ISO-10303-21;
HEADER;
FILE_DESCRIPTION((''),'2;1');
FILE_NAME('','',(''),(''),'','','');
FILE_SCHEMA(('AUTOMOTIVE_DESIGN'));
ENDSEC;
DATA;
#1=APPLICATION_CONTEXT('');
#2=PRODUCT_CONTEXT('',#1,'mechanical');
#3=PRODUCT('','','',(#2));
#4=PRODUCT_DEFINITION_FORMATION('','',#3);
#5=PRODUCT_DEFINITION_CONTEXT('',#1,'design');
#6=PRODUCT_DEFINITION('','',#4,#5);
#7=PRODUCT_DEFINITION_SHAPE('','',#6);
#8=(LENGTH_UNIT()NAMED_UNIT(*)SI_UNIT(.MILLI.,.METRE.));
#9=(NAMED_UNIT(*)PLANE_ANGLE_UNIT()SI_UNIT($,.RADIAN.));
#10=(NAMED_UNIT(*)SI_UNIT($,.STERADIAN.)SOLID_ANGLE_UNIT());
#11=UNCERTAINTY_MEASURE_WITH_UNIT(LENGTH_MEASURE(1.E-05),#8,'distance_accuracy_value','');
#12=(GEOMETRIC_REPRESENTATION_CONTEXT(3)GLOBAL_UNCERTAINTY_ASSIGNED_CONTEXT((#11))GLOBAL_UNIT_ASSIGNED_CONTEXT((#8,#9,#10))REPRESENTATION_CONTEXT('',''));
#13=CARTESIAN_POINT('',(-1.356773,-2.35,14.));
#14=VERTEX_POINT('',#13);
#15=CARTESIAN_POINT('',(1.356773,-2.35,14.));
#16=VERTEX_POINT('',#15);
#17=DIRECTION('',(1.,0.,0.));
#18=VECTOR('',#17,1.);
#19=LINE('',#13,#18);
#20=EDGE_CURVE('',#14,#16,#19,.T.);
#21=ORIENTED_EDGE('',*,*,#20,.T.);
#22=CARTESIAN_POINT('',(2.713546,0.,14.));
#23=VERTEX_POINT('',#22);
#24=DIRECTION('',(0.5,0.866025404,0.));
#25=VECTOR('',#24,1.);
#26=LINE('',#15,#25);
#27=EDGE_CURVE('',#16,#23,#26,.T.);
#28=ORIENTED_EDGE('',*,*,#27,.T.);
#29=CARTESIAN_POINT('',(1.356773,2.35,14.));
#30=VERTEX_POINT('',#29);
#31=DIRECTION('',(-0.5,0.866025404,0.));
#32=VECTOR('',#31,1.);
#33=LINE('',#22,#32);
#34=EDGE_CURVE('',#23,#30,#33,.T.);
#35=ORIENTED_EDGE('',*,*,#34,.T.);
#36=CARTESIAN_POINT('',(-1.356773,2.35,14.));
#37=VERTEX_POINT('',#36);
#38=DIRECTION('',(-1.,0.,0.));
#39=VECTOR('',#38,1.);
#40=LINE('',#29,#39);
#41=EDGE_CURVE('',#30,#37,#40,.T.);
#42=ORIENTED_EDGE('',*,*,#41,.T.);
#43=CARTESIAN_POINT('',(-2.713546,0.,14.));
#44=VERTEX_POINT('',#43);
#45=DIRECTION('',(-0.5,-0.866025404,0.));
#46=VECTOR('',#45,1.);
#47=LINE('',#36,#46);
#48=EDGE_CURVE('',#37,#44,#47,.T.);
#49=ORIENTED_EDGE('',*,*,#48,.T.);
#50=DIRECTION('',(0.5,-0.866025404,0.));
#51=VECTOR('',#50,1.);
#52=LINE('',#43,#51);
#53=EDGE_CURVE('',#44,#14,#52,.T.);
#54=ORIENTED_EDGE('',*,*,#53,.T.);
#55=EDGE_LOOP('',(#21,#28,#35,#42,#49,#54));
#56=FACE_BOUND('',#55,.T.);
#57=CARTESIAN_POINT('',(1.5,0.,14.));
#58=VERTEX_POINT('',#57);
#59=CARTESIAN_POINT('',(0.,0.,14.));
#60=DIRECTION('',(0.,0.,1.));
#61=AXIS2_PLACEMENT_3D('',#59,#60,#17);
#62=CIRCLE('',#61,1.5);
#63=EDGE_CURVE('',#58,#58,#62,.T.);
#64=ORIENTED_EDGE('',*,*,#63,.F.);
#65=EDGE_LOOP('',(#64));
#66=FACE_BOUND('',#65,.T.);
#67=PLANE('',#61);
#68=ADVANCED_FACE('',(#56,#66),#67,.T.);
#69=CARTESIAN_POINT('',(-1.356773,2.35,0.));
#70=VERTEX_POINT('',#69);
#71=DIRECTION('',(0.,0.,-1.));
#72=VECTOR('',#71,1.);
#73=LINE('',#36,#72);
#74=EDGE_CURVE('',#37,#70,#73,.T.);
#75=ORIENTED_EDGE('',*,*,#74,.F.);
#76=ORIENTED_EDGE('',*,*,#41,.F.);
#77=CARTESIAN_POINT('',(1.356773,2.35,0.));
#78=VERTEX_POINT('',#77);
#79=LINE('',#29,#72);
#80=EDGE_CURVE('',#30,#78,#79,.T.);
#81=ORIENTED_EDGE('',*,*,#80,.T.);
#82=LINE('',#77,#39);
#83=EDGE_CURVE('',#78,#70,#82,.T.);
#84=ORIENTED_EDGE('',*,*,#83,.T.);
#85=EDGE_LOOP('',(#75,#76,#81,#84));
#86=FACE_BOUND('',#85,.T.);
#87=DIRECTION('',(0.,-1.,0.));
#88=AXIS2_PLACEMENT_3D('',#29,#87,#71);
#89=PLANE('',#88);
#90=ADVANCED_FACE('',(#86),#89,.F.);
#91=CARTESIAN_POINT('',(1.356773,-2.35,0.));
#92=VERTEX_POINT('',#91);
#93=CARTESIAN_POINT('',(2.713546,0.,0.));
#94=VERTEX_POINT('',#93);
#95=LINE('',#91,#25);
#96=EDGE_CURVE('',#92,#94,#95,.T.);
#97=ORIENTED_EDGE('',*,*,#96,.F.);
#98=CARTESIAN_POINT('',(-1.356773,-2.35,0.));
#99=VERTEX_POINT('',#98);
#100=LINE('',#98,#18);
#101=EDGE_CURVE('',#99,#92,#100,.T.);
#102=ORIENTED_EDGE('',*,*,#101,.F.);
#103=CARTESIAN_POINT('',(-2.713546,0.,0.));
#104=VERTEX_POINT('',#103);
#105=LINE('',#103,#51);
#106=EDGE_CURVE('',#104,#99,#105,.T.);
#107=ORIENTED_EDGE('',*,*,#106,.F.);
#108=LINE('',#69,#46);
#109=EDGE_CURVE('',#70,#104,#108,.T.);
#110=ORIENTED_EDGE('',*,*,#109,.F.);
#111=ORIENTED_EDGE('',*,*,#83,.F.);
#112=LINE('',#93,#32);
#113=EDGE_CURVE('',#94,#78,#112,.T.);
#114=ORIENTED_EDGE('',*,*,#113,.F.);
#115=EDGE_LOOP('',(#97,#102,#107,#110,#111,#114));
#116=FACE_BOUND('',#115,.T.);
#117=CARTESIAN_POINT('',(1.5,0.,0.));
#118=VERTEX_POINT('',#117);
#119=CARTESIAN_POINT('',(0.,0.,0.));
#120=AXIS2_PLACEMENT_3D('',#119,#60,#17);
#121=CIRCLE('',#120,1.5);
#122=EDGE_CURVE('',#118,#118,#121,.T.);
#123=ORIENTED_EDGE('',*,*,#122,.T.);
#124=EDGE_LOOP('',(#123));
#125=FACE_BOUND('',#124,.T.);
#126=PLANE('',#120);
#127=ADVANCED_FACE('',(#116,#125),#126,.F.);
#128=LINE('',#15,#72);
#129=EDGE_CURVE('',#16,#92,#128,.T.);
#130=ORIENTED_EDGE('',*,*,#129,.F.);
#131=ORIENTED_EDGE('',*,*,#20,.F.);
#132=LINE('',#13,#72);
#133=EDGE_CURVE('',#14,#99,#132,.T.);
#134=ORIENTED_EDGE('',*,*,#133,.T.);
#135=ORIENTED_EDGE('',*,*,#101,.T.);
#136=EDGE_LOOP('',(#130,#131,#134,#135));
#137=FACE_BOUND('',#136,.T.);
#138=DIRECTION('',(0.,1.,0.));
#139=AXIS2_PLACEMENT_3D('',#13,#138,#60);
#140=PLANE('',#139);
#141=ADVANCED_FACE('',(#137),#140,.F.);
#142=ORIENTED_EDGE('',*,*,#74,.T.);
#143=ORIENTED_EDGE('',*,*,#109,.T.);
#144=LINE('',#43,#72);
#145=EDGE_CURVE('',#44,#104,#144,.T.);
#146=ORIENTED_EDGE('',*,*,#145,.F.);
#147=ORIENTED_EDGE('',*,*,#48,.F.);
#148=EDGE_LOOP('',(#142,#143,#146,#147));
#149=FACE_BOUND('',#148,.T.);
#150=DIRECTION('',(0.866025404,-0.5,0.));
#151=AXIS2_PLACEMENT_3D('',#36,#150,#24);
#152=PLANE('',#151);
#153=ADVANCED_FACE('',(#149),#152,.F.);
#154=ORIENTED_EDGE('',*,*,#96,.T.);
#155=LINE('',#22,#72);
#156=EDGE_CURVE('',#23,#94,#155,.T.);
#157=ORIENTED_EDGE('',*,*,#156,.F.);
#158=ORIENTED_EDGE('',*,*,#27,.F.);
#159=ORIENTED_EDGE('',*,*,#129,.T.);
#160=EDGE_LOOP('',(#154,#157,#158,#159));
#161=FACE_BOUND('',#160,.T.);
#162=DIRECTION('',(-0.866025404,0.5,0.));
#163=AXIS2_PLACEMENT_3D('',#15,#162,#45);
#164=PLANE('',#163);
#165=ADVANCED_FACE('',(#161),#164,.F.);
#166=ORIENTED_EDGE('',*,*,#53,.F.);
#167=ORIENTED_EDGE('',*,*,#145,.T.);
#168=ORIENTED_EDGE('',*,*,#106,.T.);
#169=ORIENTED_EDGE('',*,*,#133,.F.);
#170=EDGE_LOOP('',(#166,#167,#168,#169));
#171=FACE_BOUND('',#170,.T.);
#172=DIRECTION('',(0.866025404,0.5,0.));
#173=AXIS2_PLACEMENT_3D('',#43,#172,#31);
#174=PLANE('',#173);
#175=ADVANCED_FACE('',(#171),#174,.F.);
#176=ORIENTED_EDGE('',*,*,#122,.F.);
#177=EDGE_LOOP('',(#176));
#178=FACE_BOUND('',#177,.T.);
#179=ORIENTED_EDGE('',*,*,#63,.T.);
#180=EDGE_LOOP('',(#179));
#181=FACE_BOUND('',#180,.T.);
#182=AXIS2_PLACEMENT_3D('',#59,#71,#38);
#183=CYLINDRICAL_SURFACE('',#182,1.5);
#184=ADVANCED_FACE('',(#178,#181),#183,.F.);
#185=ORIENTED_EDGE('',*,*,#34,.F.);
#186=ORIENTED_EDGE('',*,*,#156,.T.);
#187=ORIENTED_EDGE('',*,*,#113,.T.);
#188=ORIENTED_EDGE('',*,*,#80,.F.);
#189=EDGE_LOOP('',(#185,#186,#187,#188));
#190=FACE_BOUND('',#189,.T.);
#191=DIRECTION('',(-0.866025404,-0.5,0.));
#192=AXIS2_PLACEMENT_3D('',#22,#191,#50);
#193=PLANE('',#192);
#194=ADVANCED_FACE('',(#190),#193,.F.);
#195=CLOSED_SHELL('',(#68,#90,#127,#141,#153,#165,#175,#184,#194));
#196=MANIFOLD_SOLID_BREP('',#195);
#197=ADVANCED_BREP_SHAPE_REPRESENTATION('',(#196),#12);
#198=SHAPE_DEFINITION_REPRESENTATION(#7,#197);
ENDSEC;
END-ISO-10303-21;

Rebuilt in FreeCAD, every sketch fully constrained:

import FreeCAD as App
import Part
import Sketcher

V = App.Vector
Q = App.Units.Quantity

doc = App.newDocument("Part")
body = doc.addObject("PartDesign::Body", "Body")

sketch1 = body.newObject("Sketcher::SketchObject", "Sketch")
sketch1.AttachmentSupport = (doc.getObject("XY_Plane"), [""])
sketch1.MapMode = "FlatFace"
sketch1.addGeometry([
    Part.LineSegment(V(1.4, 2.4, 0), V(-1.4, 2.4, 0)),
    Part.LineSegment(V(-1.4, 2.4, 0), V(-2.7, 0, 0)),
    Part.LineSegment(V(-2.7, 0, 0), V(-1.4, -2.4, 0)),
    Part.LineSegment(V(-1.4, -2.4, 0), V(1.4, -2.4, 0)),
    Part.LineSegment(V(1.4, -2.4, 0), V(2.7, 0, 0)),
    Part.LineSegment(V(2.7, 0, 0), V(1.4, 2.4, 0)),
    Part.Circle(V(0, 0, 0), V(0, 0, 1), 1.5),
], False)
sketch1.addConstraint([
    Sketcher.Constraint("Coincident", 0, 2, 1, 1),
    Sketcher.Constraint("Coincident", 1, 2, 2, 1),
    Sketcher.Constraint("Coincident", 2, 2, 3, 1),
    Sketcher.Constraint("Coincident", 3, 2, 4, 1),
    Sketcher.Constraint("Coincident", 4, 2, 5, 1),
    Sketcher.Constraint("Coincident", 5, 2, 0, 1),
    Sketcher.Constraint("Horizontal", 0),
    Sketcher.Constraint("Horizontal", 3),
    Sketcher.Constraint("Coincident", 6, 3, -1, 1),
    Sketcher.Constraint("Symmetric", 0, 2, 3, 2, -1, 1),
    Sketcher.Constraint("Symmetric", 1, 2, 4, 2, -1, 1),
    Sketcher.Constraint("PointOnObject", 1, 2, -1),
    Sketcher.Constraint("Parallel", 2, 5),
    Sketcher.Constraint("Vertical", 0, 2, 2, 2),
    Sketcher.Constraint("Diameter", 6, Q("3 mm")),
    Sketcher.Constraint("Angle", 1, Q("-120 deg")),
    Sketcher.Constraint("DistanceY", 2, 2, 0, 2, Q("4.7 mm")),
    Sketcher.Constraint("DistanceX", 0, 2, 0, 1, Q("2.713546 mm")),
])
pad1 = body.newObject("PartDesign::Pad", "Pad")
pad1.Profile = sketch1
pad1.Length = 14

doc.recompute()
